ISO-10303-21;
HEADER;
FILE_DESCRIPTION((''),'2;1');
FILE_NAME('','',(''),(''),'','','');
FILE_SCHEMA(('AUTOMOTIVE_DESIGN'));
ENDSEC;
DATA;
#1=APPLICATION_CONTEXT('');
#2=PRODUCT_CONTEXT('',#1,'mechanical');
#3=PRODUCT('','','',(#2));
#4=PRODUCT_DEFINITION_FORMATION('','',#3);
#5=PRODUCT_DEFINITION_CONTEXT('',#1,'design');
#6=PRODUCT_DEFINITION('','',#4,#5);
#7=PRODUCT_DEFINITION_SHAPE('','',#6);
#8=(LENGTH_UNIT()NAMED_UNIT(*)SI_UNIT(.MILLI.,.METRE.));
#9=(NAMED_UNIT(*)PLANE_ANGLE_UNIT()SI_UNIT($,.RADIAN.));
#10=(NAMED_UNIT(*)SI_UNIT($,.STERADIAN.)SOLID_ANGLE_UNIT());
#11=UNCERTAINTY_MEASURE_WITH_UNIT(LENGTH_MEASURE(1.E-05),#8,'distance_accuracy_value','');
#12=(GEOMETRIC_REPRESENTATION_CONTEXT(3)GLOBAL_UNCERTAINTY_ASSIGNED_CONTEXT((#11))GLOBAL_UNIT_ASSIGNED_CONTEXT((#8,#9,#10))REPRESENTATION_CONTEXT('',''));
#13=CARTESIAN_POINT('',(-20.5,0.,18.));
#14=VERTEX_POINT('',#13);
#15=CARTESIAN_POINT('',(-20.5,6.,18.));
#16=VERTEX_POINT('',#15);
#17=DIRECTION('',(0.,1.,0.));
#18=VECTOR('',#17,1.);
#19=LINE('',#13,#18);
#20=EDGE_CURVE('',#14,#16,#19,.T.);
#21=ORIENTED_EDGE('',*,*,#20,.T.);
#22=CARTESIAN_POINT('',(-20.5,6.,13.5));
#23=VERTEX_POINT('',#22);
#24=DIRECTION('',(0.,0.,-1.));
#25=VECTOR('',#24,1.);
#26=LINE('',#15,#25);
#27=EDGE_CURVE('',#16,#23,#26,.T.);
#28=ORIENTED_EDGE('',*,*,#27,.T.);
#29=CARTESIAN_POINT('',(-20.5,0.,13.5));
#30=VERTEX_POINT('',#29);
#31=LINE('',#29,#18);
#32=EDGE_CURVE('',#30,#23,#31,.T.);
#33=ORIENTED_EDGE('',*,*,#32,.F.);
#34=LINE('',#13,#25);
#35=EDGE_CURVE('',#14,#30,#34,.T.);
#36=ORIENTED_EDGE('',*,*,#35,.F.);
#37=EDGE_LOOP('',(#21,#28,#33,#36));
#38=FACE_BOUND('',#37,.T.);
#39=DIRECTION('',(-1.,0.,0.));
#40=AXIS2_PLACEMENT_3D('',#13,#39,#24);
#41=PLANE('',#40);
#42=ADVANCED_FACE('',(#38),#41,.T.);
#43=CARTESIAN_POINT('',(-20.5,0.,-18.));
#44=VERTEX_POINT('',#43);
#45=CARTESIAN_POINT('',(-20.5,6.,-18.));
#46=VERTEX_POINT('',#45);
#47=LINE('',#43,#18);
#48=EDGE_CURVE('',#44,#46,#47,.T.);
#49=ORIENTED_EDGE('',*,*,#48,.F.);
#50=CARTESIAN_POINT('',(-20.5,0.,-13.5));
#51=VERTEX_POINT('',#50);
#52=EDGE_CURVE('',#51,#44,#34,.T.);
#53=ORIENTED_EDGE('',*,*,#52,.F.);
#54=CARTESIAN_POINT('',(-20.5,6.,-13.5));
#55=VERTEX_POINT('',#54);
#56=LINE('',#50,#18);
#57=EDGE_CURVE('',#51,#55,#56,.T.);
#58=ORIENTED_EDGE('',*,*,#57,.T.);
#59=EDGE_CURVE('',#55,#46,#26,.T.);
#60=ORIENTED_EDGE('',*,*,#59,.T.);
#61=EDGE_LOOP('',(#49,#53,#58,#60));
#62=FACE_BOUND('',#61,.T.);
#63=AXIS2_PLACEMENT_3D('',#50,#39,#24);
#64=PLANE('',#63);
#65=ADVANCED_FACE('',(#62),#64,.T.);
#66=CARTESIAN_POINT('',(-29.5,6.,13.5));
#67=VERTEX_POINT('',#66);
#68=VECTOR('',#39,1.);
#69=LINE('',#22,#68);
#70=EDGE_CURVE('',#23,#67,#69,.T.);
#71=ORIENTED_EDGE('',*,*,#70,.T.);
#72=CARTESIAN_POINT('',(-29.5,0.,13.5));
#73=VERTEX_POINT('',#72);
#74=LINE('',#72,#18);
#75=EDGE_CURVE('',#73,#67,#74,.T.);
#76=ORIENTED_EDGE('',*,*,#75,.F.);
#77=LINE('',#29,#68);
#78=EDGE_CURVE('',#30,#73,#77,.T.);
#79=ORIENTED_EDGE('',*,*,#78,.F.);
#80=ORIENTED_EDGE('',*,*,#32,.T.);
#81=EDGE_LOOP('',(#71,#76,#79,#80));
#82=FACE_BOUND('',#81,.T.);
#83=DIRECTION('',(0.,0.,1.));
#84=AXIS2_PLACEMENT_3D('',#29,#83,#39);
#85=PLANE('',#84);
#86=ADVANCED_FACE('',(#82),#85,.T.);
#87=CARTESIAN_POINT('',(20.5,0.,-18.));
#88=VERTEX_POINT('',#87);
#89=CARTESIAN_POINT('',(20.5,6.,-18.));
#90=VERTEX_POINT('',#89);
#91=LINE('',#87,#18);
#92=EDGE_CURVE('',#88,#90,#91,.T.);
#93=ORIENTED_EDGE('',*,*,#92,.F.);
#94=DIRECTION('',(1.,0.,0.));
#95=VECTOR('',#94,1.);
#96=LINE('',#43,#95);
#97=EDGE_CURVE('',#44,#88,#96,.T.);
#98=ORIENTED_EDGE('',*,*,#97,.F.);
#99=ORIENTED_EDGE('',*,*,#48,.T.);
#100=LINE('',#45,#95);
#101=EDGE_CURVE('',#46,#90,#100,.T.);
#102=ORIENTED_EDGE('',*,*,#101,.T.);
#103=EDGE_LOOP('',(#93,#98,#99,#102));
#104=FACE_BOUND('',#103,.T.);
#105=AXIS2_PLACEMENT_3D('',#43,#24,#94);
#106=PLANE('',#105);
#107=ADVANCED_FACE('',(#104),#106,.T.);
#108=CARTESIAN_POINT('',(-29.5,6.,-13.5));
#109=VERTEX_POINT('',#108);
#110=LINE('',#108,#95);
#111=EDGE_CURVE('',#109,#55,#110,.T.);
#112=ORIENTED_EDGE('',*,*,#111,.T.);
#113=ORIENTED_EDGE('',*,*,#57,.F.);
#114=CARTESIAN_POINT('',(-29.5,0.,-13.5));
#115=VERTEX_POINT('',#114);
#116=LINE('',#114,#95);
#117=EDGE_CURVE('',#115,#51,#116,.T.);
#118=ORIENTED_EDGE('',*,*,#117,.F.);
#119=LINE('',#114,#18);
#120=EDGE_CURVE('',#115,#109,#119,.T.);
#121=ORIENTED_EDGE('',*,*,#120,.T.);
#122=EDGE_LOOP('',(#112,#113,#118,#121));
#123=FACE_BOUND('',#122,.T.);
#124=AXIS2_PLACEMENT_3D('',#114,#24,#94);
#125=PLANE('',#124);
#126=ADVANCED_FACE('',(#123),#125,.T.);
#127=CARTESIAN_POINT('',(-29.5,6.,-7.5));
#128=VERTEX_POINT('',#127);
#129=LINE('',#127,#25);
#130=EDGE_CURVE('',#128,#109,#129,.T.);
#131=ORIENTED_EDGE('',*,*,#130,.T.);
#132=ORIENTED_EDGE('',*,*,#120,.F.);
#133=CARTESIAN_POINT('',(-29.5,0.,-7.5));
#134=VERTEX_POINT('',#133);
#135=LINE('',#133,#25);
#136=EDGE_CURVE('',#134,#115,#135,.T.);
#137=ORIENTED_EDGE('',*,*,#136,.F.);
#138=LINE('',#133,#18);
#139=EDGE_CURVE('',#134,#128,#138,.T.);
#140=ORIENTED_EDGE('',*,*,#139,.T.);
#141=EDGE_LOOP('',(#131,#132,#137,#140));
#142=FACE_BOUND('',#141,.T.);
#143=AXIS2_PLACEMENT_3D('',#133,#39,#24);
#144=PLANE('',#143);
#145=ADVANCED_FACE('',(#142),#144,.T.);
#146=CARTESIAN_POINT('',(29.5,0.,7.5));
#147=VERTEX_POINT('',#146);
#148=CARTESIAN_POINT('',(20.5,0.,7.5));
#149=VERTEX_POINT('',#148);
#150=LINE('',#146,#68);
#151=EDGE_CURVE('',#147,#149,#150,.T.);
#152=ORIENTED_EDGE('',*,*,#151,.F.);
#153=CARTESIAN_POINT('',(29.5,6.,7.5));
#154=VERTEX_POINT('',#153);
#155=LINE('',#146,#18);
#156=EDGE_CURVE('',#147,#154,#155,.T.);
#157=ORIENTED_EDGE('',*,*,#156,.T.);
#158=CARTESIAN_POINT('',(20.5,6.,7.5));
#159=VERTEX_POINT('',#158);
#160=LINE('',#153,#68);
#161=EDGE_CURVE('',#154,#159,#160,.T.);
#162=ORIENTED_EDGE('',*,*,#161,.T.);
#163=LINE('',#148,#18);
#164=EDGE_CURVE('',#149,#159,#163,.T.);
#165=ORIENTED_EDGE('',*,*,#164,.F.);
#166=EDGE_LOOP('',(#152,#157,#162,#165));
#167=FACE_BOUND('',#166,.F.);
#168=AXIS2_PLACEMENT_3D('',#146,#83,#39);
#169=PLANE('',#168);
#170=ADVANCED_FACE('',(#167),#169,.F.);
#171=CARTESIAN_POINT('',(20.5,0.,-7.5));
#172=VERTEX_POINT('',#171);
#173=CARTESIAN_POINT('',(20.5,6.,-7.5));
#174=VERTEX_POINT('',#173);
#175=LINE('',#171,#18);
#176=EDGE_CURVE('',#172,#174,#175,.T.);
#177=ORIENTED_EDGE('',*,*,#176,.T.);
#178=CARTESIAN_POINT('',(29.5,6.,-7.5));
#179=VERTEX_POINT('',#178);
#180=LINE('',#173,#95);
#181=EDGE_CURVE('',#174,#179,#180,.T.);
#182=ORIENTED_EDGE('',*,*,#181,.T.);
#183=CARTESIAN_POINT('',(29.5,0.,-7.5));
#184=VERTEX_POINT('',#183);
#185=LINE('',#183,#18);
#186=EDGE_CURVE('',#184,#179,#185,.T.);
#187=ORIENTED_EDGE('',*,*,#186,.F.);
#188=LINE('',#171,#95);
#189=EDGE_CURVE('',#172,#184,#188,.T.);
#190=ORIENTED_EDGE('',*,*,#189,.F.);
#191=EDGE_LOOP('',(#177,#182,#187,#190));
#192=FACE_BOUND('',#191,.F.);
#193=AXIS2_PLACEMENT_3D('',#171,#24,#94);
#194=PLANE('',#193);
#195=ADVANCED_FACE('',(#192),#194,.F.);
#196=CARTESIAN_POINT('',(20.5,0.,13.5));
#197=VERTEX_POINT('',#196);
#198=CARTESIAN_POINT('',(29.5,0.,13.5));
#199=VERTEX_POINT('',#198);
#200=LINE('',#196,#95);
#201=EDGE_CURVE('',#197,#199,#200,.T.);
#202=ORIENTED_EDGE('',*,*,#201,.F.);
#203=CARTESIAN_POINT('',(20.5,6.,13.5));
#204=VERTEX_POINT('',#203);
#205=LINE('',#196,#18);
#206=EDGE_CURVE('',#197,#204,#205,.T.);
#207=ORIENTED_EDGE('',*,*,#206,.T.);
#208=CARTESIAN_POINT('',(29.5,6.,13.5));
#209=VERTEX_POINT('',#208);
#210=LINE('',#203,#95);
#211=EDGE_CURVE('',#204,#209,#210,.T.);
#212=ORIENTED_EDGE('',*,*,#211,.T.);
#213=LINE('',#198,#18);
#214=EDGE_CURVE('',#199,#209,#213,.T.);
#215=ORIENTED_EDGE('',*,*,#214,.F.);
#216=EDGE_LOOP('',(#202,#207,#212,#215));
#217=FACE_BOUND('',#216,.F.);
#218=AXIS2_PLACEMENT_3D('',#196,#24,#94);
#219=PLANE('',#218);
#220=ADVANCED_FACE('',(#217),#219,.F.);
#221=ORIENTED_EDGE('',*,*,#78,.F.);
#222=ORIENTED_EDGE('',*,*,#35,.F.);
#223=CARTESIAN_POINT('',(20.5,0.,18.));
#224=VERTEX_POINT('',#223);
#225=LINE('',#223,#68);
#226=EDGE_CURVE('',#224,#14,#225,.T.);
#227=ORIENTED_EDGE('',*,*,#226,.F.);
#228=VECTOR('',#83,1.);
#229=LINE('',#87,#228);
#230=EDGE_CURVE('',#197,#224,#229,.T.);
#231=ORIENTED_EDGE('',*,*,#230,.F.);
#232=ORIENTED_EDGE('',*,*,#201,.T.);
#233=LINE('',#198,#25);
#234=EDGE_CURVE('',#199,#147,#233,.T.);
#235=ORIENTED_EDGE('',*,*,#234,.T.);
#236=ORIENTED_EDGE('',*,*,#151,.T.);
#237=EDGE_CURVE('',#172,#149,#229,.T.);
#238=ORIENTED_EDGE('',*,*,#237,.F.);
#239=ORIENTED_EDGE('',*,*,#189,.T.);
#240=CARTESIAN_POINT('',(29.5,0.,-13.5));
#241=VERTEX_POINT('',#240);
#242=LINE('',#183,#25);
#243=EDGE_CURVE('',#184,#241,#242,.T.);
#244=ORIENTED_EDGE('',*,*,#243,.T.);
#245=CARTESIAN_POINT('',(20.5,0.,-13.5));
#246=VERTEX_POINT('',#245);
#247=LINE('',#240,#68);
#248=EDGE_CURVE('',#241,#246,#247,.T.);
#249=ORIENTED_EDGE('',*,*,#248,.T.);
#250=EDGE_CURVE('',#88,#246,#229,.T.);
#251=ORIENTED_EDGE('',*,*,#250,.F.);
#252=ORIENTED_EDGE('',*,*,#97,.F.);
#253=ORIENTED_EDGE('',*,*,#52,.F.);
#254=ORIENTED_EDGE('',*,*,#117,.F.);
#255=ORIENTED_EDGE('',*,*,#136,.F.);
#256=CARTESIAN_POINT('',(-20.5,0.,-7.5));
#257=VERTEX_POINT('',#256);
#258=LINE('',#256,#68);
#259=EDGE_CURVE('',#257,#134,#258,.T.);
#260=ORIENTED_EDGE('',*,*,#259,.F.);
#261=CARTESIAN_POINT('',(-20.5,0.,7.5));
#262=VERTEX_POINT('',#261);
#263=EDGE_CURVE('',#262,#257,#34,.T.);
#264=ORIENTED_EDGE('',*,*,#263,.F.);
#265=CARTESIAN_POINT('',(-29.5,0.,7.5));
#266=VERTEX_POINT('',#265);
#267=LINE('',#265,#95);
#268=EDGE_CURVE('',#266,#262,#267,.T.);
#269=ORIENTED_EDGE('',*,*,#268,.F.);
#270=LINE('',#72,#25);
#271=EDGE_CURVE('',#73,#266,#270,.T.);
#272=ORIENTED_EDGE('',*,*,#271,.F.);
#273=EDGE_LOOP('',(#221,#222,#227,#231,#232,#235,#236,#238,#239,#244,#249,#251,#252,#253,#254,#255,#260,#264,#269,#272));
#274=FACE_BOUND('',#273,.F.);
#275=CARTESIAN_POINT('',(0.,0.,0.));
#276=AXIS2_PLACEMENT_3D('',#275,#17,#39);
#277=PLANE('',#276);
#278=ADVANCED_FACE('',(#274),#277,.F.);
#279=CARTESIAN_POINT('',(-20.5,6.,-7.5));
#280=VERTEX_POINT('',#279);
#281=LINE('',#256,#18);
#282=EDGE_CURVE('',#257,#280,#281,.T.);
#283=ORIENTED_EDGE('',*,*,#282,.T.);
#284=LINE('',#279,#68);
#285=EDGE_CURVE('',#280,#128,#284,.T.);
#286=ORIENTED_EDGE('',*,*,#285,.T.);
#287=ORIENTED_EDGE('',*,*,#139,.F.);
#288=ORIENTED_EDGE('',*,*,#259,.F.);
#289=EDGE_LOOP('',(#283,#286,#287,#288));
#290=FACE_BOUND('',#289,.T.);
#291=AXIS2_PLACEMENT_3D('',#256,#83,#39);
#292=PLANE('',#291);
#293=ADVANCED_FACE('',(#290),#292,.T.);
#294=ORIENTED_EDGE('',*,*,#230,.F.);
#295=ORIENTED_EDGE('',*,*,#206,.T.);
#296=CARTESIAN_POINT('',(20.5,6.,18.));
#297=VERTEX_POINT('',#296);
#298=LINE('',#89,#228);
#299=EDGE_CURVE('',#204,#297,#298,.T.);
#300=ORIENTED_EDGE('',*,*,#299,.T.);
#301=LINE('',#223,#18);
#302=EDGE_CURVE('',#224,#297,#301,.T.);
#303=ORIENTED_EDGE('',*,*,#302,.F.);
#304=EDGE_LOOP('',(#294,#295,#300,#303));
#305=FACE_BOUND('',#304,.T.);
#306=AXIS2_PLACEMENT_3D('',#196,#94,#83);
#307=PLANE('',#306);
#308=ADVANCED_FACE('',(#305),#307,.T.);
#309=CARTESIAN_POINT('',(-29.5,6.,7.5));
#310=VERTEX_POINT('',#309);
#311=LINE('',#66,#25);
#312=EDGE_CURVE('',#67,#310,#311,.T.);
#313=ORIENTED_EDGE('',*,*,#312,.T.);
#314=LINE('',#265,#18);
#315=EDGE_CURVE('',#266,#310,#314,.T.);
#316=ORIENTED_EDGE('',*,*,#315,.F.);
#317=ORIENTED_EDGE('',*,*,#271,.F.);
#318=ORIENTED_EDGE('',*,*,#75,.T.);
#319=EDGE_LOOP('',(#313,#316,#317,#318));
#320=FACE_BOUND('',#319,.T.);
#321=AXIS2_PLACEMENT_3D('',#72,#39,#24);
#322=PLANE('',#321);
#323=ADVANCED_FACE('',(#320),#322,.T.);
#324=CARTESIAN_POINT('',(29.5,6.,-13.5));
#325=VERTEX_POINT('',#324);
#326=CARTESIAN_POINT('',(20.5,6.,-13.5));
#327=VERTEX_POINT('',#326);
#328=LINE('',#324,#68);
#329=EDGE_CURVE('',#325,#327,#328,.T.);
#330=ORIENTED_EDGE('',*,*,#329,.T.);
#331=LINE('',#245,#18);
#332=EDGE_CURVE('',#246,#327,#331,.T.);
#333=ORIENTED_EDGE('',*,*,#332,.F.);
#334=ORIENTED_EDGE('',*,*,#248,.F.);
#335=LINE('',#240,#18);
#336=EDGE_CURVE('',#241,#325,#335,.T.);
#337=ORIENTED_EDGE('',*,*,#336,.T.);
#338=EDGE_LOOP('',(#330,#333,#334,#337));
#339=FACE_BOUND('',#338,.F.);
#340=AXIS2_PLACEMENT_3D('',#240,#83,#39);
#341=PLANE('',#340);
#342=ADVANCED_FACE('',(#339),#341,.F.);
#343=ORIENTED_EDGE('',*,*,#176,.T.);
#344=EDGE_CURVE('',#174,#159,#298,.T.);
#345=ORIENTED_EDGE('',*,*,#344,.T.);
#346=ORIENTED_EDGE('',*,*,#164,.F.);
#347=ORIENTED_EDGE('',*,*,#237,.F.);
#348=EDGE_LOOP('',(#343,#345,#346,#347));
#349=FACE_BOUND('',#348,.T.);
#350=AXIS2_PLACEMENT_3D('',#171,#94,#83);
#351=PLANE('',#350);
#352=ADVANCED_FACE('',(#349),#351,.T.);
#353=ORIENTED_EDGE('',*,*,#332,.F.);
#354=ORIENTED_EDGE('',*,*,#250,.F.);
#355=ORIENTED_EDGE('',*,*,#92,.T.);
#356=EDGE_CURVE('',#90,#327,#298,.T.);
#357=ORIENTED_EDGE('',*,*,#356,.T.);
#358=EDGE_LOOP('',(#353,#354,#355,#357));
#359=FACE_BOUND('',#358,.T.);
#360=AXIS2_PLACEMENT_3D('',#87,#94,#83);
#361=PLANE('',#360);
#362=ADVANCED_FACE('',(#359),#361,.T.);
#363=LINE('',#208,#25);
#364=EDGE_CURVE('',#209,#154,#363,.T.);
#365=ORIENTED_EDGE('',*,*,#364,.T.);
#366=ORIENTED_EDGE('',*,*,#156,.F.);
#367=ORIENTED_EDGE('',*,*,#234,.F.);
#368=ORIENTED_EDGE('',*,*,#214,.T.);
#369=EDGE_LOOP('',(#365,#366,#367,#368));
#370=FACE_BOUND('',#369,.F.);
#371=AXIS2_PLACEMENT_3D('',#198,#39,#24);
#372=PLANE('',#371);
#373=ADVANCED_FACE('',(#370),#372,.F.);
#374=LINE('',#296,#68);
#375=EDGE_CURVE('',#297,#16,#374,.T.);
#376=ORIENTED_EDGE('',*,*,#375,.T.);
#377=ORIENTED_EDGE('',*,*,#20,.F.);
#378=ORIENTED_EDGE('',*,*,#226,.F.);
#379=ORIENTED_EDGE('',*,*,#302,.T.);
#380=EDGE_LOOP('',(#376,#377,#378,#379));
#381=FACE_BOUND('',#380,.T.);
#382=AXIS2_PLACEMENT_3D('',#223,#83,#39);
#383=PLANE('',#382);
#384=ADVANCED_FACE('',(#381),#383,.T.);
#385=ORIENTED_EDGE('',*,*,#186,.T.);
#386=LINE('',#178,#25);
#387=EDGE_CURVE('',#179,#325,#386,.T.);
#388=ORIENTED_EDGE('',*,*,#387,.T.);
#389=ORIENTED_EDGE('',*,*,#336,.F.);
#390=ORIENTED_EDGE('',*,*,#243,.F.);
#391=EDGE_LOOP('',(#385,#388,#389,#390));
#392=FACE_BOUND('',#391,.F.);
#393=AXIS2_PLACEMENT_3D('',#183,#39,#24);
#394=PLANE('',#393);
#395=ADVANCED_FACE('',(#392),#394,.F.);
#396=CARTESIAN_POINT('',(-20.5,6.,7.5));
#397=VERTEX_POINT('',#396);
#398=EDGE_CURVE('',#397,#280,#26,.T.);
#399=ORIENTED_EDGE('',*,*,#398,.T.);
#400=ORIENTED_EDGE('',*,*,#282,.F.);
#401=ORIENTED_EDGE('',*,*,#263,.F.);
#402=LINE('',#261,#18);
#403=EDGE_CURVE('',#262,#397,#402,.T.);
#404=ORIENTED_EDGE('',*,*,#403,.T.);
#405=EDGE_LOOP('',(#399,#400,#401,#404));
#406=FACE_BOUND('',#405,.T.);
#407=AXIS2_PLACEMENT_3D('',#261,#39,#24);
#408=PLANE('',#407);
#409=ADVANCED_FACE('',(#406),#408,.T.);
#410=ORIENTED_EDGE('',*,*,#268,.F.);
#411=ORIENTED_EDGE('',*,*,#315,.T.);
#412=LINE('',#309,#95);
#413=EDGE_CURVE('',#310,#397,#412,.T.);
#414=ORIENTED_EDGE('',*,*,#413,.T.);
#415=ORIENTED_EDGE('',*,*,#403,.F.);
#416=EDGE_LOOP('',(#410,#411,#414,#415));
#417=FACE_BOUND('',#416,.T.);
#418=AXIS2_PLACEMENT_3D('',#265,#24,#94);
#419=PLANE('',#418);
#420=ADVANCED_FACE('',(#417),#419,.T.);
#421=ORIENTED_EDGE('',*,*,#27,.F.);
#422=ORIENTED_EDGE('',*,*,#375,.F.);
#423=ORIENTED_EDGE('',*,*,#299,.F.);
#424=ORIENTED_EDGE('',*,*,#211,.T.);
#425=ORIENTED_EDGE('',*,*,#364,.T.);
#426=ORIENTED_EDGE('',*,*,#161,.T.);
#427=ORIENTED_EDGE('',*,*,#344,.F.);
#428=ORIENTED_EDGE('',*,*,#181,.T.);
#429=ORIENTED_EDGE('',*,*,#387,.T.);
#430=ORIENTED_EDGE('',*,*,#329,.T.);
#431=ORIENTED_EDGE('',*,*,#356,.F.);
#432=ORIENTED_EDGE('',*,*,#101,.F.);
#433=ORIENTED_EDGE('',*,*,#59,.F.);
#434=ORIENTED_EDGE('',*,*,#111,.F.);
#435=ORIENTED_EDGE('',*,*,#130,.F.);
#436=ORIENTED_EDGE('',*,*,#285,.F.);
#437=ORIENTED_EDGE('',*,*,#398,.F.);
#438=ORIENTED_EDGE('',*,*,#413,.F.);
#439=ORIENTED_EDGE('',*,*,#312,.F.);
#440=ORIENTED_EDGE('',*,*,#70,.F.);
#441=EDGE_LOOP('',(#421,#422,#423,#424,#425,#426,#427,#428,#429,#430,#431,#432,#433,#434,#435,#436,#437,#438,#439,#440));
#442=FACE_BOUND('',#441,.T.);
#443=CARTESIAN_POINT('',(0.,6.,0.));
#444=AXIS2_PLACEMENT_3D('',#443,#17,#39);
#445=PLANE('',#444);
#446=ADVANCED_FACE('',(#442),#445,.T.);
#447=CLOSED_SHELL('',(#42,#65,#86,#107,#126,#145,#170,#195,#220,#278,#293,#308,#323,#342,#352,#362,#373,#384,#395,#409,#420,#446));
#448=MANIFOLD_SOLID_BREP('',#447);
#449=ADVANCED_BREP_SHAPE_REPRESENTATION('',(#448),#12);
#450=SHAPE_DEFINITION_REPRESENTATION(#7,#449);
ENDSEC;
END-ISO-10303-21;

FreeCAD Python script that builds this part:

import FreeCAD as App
import Part
import Sketcher
Q = App.Units.Quantity


def add_polygon(sketch, points):
    """Adds a closed chain of lines whose ends are joined by coincident constraints."""
    first, n = sketch.GeometryCount, len(points)
    for a, b in zip(points, points[1:] + points[:1]):
        sketch.addGeometry(Part.LineSegment(App.Vector(*a, 0), App.Vector(*b, 0)), False)
    for i in range(n):
        sketch.addConstraint(Sketcher.Constraint("Coincident", first + i, 2, first + (i + 1) % n, 1))

doc = App.newDocument("Part")
body = doc.addObject("PartDesign::Body", "Body")

# Sketch on XZ plane
sketch1 = body.newObject("Sketcher::SketchObject", "Sketch")
sketch1.AttachmentSupport = (doc.getObject("XZ_Plane"), [""])
sketch1.MapMode = "FlatFace"
add_polygon(sketch1, [(20.5, -18), (-20.5, -18), (-20.5, -13.5), (-29.5, -13.5), (-29.5, -7.5), (-20.5, -7.5), (-20.5, 7.5), (-29.5, 7.5), (-29.5, 13.5), (-20.5, 13.5), (-20.5, 18), (20.5, 18), (20.5, 13.5), (29.5, 13.5), (29.5, 7.5), (20.5, 7.5), (20.5, -7.5), (29.5, -7.5), (29.5, -13.5), (20.5, -13.5)])  # lines 0-19
sketch1.addConstraint([
    Sketcher.Constraint("Horizontal", 0),
    Sketcher.Constraint("Vertical", 1),
    Sketcher.Constraint("Horizontal", 2),
    Sketcher.Constraint("Vertical", 3),
    Sketcher.Constraint("Horizontal", 4),
    Sketcher.Constraint("Vertical", 5),
    Sketcher.Constraint("Horizontal", 6),
    Sketcher.Constraint("Vertical", 7),
    Sketcher.Constraint("Horizontal", 8),
    Sketcher.Constraint("Vertical", 9),
    Sketcher.Constraint("Horizontal", 10),
    Sketcher.Constraint("Vertical", 11),
    Sketcher.Constraint("Horizontal", 12),
    Sketcher.Constraint("Vertical", 13),
    Sketcher.Constraint("Horizontal", 14),
    Sketcher.Constraint("Vertical", 15),
    Sketcher.Constraint("Horizontal", 16),
    Sketcher.Constraint("Vertical", 17),
    Sketcher.Constraint("Horizontal", 18),
    Sketcher.Constraint("Vertical", 19),
    Sketcher.Constraint("Symmetric", 0, 2, 10, 2, -1, 1),
    Sketcher.Constraint("Symmetric", 2, 2, 12, 2, -1, 1),
    Sketcher.Constraint("Symmetric", 4, 2, 14, 2, -1, 1),
    Sketcher.Constraint("Symmetric", 6, 2, 16, 2, -1, 1),
    Sketcher.Constraint("Symmetric", 8, 2, 18, 2, -1, 1),
    Sketcher.Constraint("Symmetric", 8, 2, 11, 2, -2),
    Sketcher.Constraint("Symmetric", 6, 2, 13, 2, -2),
    Sketcher.Constraint("Vertical", 1, 2, 4, 2),
    Sketcher.Constraint("DistanceX", 0, 2, 0, 1, Q("41 mm")),
    Sketcher.Constraint("DistanceX", 2, 2, 2, 1, Q("9 mm")),
    Sketcher.Constraint("DistanceY", 3, 1, 3, 2, Q("6 mm")),
    Sketcher.Constraint("DistanceY", 5, 1, 5, 2, Q("15 mm")),
    Sketcher.Constraint("DistanceY", 1, 1, 1, 2, Q("4.5 mm")),
])
pad1 = body.newObject("PartDesign::Pad", "Pad")
pad1.Profile = sketch1
pad1.Length = 6
pad1.Reversed = True

doc.recompute()
